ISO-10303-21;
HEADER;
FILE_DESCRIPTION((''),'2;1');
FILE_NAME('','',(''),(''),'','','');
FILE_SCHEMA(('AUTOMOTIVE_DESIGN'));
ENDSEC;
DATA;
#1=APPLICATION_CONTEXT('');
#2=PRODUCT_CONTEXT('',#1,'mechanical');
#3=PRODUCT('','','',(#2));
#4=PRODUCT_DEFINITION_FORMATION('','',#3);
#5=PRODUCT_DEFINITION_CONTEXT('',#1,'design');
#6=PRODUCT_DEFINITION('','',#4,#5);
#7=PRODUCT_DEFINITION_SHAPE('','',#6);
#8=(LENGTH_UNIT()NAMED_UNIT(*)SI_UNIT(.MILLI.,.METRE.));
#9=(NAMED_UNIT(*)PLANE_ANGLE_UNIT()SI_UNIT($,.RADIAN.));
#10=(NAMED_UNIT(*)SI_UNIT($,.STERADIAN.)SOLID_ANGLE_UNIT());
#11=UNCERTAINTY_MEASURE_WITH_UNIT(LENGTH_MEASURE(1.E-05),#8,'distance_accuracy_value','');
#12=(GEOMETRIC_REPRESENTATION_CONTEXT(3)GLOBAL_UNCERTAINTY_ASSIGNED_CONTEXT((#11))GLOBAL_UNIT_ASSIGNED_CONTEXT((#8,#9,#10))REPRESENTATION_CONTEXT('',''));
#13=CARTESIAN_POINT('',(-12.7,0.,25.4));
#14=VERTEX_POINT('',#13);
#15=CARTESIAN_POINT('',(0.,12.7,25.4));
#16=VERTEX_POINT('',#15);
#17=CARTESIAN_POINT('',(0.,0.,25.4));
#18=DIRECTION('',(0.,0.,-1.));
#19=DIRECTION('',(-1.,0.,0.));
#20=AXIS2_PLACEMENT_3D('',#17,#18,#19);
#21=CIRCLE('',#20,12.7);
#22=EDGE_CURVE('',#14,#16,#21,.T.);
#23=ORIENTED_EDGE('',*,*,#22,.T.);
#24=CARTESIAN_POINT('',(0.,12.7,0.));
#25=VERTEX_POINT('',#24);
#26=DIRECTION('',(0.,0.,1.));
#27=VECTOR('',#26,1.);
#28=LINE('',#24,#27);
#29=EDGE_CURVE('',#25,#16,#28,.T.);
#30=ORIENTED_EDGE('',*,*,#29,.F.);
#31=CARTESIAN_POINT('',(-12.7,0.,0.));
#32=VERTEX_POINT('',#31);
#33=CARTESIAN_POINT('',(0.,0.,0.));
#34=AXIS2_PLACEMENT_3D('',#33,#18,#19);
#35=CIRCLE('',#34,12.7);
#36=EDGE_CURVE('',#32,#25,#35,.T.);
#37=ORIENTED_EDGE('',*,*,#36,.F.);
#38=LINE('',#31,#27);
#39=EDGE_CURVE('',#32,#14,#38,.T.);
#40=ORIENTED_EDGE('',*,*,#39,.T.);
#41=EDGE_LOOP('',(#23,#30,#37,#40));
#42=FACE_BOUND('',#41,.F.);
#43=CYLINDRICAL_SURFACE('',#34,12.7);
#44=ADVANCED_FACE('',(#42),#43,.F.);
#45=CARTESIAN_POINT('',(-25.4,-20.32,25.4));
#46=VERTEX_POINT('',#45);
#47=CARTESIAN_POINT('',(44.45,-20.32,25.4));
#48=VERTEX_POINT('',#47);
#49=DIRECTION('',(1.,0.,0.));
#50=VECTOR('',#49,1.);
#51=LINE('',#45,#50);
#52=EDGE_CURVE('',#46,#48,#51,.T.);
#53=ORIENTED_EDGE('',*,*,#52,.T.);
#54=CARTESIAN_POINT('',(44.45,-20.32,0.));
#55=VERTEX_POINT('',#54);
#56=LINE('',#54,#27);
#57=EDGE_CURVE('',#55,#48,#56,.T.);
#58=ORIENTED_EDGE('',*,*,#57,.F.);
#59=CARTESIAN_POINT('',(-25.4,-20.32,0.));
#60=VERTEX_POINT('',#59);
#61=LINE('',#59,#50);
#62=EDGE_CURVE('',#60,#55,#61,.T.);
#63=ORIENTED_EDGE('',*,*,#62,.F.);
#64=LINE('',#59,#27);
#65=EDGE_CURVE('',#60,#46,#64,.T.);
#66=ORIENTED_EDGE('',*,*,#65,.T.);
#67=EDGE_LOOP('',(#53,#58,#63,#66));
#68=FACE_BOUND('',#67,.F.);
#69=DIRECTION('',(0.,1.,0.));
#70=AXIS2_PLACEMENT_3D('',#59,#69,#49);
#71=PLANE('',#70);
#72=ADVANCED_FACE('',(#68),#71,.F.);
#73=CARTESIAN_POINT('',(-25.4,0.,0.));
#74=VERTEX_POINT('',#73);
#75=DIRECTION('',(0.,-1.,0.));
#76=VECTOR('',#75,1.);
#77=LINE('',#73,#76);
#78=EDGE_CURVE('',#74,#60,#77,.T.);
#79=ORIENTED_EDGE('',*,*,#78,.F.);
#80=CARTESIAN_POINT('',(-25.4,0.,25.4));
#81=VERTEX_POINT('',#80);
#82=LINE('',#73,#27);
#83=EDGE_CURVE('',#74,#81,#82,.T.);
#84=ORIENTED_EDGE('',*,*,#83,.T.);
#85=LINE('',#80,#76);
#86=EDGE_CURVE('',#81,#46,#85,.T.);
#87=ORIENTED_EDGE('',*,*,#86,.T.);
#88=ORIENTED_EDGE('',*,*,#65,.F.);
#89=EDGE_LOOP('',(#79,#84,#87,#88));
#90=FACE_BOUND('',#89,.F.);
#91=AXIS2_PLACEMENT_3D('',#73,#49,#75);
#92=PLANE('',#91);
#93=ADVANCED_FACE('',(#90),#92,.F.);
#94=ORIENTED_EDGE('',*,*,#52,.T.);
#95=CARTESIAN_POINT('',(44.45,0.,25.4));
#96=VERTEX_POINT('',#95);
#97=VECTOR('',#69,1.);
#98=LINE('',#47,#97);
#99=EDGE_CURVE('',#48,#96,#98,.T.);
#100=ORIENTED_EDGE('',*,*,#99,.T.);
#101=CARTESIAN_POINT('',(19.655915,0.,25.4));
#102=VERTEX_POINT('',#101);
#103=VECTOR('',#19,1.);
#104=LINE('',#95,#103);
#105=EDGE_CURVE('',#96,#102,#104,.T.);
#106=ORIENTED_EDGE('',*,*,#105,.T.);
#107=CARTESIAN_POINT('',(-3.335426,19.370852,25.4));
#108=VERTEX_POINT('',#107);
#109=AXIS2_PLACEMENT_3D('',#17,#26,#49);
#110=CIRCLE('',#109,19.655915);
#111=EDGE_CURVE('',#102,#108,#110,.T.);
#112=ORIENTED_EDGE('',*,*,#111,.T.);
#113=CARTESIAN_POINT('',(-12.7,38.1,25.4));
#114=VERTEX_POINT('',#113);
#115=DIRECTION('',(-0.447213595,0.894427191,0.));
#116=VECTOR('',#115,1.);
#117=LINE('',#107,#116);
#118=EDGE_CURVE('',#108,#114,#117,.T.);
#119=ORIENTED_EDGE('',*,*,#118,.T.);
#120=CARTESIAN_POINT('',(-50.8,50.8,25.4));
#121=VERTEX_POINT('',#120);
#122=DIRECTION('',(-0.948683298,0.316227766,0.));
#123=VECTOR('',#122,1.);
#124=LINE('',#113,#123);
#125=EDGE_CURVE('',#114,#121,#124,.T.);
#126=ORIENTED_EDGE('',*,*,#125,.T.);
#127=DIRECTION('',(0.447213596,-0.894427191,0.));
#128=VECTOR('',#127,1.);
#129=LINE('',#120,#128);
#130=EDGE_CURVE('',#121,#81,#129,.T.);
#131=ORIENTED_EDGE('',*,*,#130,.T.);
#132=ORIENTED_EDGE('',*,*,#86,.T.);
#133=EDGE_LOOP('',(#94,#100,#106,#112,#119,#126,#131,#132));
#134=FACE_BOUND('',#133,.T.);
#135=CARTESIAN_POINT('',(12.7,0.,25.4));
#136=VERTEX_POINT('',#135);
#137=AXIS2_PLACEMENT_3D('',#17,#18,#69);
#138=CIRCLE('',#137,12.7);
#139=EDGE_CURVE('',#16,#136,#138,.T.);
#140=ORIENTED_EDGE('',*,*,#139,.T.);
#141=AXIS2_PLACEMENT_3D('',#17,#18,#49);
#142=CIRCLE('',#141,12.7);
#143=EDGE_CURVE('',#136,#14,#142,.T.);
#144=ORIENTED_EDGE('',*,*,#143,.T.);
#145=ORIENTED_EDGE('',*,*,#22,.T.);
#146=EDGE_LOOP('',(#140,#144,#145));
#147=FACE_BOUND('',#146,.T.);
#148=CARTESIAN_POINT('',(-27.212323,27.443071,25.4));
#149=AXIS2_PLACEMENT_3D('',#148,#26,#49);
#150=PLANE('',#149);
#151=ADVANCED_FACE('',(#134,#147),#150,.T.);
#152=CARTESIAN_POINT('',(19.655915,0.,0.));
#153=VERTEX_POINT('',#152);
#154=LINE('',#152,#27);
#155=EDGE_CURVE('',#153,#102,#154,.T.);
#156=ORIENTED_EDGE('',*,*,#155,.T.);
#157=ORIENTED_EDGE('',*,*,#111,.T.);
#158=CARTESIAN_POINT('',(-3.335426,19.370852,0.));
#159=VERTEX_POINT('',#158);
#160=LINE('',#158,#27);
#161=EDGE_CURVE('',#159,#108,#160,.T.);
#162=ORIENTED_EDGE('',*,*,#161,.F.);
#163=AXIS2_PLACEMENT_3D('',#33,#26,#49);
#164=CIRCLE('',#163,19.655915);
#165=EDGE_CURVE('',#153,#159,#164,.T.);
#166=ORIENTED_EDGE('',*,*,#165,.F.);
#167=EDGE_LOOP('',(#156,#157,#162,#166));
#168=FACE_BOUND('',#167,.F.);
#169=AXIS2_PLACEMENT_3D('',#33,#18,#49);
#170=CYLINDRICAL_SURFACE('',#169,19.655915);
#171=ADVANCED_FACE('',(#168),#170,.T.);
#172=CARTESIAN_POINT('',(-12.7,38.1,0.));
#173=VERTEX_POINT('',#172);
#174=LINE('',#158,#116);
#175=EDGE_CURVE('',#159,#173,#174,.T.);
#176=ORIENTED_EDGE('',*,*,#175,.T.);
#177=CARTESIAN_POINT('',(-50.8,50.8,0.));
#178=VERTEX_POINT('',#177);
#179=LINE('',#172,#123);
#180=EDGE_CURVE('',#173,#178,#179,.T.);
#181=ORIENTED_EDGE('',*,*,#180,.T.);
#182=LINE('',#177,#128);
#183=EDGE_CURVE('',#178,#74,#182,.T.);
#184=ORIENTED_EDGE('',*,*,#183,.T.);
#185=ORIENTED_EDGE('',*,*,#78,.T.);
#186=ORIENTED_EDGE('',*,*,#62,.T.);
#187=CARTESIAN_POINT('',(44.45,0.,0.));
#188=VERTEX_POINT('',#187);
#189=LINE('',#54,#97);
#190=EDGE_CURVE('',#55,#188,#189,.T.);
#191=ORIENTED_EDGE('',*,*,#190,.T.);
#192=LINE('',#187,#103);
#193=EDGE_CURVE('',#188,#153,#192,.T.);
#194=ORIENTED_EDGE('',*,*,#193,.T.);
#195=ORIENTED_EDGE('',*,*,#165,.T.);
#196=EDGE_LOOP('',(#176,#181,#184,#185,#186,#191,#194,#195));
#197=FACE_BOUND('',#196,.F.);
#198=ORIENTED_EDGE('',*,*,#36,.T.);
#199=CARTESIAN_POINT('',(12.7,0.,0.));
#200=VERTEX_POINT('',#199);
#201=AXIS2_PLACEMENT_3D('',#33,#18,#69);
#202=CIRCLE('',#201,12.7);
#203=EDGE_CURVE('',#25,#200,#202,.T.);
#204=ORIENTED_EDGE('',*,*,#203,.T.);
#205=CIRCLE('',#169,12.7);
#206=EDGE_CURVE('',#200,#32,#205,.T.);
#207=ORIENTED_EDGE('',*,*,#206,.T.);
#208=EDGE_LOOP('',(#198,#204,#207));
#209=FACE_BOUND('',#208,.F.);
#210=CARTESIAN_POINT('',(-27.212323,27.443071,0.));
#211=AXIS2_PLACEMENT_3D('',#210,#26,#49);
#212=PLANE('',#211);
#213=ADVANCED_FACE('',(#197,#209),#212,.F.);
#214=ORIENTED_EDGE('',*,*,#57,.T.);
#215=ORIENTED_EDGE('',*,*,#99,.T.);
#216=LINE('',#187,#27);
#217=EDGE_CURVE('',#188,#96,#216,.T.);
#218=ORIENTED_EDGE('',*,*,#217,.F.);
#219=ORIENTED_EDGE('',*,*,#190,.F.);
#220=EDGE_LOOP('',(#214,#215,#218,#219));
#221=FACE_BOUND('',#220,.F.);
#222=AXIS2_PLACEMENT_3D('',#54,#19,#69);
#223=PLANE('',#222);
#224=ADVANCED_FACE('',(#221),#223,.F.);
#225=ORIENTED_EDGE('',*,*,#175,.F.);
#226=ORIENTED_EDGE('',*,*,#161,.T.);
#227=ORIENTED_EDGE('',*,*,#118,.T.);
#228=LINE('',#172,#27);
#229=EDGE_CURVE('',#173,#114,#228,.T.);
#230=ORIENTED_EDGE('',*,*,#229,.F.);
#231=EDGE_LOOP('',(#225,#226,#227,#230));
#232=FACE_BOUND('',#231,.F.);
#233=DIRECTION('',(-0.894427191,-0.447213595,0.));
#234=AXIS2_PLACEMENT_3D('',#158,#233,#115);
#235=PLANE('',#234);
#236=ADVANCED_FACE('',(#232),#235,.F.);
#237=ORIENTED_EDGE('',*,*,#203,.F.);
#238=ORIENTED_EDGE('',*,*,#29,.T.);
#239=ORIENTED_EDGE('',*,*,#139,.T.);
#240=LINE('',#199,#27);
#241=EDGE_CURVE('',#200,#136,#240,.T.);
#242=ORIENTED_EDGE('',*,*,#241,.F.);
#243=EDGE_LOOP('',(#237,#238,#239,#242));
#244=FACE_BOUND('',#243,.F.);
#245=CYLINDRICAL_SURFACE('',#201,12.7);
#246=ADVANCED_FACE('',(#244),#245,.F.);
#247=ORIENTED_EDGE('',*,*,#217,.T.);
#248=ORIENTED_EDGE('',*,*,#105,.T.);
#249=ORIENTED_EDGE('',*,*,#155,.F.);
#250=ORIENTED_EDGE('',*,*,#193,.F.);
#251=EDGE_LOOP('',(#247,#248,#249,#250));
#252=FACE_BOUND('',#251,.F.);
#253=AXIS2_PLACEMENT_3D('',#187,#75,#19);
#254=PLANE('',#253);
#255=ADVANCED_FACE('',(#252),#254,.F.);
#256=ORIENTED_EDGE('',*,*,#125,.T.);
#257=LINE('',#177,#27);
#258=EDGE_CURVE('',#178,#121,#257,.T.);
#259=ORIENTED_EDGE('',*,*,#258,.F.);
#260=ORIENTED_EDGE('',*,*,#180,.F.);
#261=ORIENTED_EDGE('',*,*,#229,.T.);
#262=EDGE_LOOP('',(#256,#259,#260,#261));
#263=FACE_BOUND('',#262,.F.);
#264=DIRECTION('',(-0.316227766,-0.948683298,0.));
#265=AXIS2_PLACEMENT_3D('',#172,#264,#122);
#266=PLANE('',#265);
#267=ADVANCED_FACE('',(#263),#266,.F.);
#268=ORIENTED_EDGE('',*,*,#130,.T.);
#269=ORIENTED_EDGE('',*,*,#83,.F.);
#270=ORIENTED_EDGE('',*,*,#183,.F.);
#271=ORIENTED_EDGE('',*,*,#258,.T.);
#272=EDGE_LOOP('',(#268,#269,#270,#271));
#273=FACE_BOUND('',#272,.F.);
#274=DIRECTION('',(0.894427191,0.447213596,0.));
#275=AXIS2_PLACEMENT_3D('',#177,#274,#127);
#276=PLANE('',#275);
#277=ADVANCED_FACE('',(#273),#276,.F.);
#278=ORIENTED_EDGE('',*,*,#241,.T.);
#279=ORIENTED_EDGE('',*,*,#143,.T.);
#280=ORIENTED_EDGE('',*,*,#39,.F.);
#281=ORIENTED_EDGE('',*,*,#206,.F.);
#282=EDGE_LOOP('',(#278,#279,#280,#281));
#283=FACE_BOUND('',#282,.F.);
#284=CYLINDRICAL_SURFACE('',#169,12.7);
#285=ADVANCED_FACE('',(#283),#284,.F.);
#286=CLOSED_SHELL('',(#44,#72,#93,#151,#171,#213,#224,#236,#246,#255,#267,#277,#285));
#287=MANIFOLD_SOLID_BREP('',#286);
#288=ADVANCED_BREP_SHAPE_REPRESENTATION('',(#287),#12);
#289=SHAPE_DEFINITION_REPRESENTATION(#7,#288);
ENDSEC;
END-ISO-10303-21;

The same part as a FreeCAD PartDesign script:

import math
import FreeCAD as App
import Part
import Sketcher

V = App.Vector
Q = App.Units.Quantity

doc = App.newDocument("Part")
params = doc.addObject("Spreadsheet::Sheet", "Params")
for row, (alias, value) in enumerate([
    ("sketch1_radius", "0.5 in"),
    ("sketch1_height", "0.8 in"),
    ("sketch1_width", "2.75 in"),
    ("pad1_length", "1 in"),
], start=1):
    params.set(f"A{row}", alias)
    params.set(f"B{row}", "=" + value)
    params.setAlias(f"B{row}", alias)

body = doc.addObject("PartDesign::Body", "Body")

# Sketch on XY plane
sketch1 = body.newObject("Sketcher::SketchObject", "Sketch")
sketch1.AttachmentSupport = (doc.getObject("XY_Plane"), [""])
sketch1.MapMode = "FlatFace"
sketch1.addGeometry(Part.LineSegment(V(-3, 19, 0), V(-13, 38, 0)), False)
sketch1.addGeometry(Part.LineSegment(V(-13, 38, 0), V(-51, 51, 0)), False)
sketch1.addGeometry(Part.LineSegment(V(-51, 51, 0), V(-25, 0, 0)), False)
sketch1.addGeometry(Part.LineSegment(V(-25, 0, 0), V(-25, -20, 0)), False)
sketch1.addGeometry(Part.LineSegment(V(-25, -20, 0), V(44, -20, 0)), False)
sketch1.addGeometry(Part.LineSegment(V(44, -20, 0), V(44, 0, 0)), False)
sketch1.addGeometry(Part.LineSegment(V(44, 0, 0), V(20, 0, 0)), False)
sketch1.addGeometry(Part.ArcOfCircle(Part.Circle(V(0, 0, 0), V(0, 0, 1), 20), math.radians(0), math.radians(100)), False)
sketch1.addGeometry(Part.ArcOfCircle(Part.Circle(V(0, 0, 0), V(0, 0, 1), 13), math.radians(90), math.radians(180)), False)
sketch1.addGeometry(Part.ArcOfCircle(Part.Circle(V(0, 0, 0), V(0, 0, 1), 13), math.radians(0), math.radians(90)), False)
sketch1.addGeometry(Part.ArcOfCircle(Part.Circle(V(0, 0, 0), V(0, 0, 1), 13), math.radians(180), math.radians(360)), False)
sketch1.addConstraint(Sketcher.Constraint("Coincident", 0, 2, 1, 1))
sketch1.addConstraint(Sketcher.Constraint("Coincident", 1, 2, 2, 1))
sketch1.addConstraint(Sketcher.Constraint("Coincident", 2, 2, 3, 1))
sketch1.addConstraint(Sketcher.Constraint("Coincident", 3, 2, 4, 1))
sketch1.addConstraint(Sketcher.Constraint("Coincident", 4, 2, 5, 1))
sketch1.addConstraint(Sketcher.Constraint("Coincident", 5, 2, 6, 1))
sketch1.addConstraint(Sketcher.Constraint("Coincident", 6, 2, 7, 1))
sketch1.addConstraint(Sketcher.Constraint("Coincident", 7, 2, 0, 1))
sketch1.addConstraint(Sketcher.Constraint("Tangent", 8, 1, 9, 2))
sketch1.addConstraint(Sketcher.Constraint("Tangent", 9, 1, 10, 2))
sketch1.addConstraint(Sketcher.Constraint("Tangent", 10, 1, 8, 2))
sketch1.addConstraint(Sketcher.Constraint("Vertical", 3))
sketch1.addConstraint(Sketcher.Constraint("Horizontal", 4))
sketch1.addConstraint(Sketcher.Constraint("Vertical", 5))
sketch1.addConstraint(Sketcher.Constraint("Horizontal", 6))
sketch1.addConstraint(Sketcher.Constraint("Coincident", 7, 3, -1, 1))
sketch1.addConstraint(Sketcher.Constraint("Coincident", 8, 3, -1, 1))
sketch1.addConstraint(Sketcher.Constraint("PointOnObject", 2, 2, -1))
sketch1.addConstraint(Sketcher.Constraint("PointOnObject", 5, 2, -1))
sketch1.addConstraint(Sketcher.Constraint("PointOnObject", 8, 1, -2))
sketch1.addConstraint(Sketcher.Constraint("PointOnObject", 9, 1, -1))
sketch1.addConstraint(Sketcher.Constraint("PointOnObject", 10, 1, -1))
sketch1.addConstraint(Sketcher.Constraint("Parallel", 0, 2))
sketch1.addConstraint(Sketcher.Constraint("Vertical", 0, 2, 10, 1))
sketch1.addConstraint(Sketcher.Constraint("Radius", 8, Q("0.5 in")))
sketch1.addConstraint(Sketcher.Constraint("DistanceY", 3, 2, 3, 1, Q("0.8 in")))
sketch1.addConstraint(Sketcher.Constraint("DistanceX", 1, 2, -1, 1, Q("2 in")))
sketch1.addConstraint(Sketcher.Constraint("DistanceY", -1, 1, 1, 2, Q("2 in")))
sketch1.addConstraint(Sketcher.Constraint("DistanceX", 2, 2, -1, 1, Q("1 in")))
sketch1.addConstraint(Sketcher.Constraint("DistanceX", 4, 1, 4, 2, Q("2.75 in")))
sketch1.addConstraint(Sketcher.Constraint("DistanceY", -1, 1, 0, 2, Q("1.5 in")))
sketch1.addConstraint(Sketcher.Constraint("Radius", 7, 19.655915))
sketch1.setExpression("Constraints[24]", "Params.sketch1_radius")
sketch1.setExpression("Constraints[25]", "Params.sketch1_height")
sketch1.setExpression("Constraints[29]", "Params.sketch1_width")
pad1 = body.newObject("PartDesign::Pad", "Pad")
pad1.Profile = sketch1
pad1.setExpression("Length", "Params.pad1_length")

doc.recompute()
